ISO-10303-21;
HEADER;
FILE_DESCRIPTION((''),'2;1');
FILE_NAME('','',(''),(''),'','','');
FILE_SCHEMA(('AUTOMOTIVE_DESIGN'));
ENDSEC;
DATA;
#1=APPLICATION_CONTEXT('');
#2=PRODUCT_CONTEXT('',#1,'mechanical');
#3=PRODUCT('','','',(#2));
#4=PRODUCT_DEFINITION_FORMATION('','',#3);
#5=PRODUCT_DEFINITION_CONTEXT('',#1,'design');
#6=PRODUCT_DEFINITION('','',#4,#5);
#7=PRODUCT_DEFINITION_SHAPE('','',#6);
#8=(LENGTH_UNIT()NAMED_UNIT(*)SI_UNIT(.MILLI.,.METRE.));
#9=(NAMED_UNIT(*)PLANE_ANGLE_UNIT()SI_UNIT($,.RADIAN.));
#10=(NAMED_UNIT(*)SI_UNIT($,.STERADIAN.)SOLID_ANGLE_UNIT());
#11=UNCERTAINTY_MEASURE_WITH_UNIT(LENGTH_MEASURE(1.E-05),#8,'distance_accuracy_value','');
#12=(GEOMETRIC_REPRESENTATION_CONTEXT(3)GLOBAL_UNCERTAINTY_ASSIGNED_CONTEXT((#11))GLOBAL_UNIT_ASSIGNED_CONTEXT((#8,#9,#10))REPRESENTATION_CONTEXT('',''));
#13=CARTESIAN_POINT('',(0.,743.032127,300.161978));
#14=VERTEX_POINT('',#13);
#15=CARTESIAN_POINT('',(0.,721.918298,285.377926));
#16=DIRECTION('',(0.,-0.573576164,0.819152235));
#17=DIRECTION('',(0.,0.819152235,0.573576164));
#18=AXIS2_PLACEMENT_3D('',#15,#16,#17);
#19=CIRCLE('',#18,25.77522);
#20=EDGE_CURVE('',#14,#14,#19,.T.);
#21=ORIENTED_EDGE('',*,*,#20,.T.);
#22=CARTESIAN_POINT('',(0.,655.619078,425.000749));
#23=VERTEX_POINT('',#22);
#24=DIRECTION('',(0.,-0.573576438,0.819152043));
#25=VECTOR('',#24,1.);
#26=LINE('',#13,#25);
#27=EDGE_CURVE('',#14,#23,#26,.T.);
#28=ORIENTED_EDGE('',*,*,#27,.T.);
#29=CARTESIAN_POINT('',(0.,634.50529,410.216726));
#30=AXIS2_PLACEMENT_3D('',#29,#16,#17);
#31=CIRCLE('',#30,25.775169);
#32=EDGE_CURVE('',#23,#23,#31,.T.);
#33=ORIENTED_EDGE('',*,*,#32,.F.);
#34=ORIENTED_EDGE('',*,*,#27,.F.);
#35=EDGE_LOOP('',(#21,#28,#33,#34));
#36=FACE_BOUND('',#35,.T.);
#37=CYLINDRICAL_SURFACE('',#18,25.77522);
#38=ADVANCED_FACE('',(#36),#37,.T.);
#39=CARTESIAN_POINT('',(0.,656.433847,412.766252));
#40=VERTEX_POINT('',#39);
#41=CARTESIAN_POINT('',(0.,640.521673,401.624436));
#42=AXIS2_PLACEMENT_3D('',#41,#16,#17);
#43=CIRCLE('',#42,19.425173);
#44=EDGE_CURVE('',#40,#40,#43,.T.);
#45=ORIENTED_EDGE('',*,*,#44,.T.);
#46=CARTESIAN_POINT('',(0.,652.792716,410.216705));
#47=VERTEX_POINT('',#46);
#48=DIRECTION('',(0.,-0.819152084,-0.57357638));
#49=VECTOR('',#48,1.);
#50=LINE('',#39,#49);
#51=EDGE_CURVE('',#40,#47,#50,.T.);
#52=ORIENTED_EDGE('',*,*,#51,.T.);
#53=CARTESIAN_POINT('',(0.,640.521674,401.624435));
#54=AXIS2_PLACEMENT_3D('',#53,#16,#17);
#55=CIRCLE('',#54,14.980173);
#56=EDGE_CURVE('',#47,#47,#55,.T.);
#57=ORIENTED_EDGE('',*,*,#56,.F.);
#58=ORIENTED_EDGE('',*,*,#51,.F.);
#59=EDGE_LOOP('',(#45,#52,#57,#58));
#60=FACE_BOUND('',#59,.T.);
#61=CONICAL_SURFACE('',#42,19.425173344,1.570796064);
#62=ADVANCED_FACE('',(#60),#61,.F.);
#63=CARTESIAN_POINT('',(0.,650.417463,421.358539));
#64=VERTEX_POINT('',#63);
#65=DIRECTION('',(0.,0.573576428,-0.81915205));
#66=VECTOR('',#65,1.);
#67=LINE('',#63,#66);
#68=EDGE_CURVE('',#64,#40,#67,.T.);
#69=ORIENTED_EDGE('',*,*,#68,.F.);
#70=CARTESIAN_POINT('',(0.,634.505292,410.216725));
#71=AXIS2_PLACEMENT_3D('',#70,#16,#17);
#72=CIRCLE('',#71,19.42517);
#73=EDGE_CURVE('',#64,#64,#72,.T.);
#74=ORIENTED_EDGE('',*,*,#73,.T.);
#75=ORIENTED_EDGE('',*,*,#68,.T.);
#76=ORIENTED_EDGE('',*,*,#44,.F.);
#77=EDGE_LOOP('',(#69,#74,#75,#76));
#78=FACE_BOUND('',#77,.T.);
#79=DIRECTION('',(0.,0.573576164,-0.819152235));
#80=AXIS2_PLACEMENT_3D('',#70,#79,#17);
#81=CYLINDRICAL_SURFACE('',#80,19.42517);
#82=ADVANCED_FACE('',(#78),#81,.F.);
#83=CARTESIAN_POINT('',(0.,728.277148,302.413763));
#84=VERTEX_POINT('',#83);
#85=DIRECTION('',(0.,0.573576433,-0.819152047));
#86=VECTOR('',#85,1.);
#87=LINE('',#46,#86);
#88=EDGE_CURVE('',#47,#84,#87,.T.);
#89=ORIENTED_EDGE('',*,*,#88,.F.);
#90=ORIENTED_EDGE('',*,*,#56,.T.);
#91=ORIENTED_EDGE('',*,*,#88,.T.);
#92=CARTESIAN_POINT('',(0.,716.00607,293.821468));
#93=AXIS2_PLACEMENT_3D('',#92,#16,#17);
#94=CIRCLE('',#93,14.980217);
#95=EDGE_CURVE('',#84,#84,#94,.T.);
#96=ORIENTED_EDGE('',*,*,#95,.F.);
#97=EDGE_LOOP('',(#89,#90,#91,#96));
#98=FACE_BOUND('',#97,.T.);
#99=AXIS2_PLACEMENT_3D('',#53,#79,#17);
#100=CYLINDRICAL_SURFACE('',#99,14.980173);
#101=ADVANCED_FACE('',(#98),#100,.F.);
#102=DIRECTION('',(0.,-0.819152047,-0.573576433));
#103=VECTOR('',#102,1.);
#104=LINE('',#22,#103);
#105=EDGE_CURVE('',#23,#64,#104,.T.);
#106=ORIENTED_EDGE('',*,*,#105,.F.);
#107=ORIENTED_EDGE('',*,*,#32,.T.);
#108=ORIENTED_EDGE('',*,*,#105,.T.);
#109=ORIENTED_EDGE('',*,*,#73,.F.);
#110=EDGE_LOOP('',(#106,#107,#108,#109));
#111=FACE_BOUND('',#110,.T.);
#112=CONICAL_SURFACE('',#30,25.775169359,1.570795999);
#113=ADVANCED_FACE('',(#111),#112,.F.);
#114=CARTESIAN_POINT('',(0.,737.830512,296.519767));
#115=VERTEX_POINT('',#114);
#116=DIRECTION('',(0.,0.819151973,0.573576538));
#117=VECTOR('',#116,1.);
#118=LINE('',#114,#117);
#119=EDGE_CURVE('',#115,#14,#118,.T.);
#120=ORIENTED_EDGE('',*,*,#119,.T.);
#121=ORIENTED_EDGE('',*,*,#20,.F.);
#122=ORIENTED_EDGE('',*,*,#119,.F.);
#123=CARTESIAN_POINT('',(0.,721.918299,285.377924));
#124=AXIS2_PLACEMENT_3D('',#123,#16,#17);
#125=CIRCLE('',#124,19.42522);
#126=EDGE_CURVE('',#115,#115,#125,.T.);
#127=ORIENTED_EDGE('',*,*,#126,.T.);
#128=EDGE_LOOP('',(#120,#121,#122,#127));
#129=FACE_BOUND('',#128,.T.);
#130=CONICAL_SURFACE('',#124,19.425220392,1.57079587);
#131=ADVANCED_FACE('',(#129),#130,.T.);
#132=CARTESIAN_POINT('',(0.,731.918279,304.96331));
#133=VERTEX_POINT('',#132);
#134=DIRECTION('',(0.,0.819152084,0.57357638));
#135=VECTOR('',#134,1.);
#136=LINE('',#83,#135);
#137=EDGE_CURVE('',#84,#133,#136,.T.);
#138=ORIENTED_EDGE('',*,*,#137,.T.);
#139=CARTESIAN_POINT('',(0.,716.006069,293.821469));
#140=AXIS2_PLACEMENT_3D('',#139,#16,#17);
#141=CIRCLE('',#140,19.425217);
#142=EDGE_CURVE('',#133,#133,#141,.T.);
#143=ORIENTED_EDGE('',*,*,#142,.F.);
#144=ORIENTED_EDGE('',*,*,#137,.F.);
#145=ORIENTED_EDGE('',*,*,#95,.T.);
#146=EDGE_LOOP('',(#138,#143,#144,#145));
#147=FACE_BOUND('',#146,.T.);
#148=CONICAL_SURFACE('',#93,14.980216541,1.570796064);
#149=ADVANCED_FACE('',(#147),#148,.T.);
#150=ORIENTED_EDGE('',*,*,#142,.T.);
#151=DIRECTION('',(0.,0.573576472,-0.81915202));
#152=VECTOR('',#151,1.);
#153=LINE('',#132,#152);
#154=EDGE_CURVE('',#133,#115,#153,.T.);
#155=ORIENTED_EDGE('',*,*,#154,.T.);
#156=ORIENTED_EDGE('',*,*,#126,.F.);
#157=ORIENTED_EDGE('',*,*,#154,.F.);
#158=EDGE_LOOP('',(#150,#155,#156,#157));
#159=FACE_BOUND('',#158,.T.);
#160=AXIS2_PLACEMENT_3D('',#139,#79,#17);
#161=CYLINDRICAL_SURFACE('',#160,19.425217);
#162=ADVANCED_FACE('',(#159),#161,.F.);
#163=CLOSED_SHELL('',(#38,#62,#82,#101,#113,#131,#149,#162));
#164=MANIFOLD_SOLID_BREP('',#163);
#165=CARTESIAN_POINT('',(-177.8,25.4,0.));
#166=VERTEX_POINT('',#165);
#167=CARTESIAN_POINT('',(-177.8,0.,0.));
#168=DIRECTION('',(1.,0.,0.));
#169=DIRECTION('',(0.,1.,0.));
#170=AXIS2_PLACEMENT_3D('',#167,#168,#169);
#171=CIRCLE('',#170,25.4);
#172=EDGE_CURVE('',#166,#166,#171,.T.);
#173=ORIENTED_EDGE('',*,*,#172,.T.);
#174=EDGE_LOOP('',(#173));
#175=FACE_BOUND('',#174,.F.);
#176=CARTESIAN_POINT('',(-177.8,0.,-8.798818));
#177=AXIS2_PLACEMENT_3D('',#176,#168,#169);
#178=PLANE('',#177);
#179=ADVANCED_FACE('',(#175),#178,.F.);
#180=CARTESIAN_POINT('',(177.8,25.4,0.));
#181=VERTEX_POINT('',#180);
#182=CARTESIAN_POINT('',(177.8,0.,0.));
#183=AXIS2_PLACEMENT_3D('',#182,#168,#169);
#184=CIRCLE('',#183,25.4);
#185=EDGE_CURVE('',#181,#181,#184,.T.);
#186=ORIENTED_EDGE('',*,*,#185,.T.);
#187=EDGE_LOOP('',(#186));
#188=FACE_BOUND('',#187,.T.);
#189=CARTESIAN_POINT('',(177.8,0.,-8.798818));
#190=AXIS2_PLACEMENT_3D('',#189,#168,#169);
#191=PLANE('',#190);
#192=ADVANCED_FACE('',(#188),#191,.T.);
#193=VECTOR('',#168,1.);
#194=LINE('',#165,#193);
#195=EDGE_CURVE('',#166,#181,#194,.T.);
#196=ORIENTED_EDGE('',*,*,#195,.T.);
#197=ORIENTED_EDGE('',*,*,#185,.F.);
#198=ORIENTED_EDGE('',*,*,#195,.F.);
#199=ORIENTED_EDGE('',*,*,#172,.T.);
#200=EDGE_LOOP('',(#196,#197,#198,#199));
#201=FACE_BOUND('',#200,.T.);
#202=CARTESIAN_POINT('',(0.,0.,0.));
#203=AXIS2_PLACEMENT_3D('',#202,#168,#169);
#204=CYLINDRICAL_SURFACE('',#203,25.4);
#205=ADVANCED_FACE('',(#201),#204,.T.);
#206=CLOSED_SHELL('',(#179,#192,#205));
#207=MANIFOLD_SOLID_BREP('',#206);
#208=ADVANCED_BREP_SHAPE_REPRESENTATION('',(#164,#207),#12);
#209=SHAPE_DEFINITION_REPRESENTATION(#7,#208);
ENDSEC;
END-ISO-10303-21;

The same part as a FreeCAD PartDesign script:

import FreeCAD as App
import Part
import Sketcher
Q = App.Units.Quantity

doc = App.newDocument("Part")
params = doc.addObject("Spreadsheet::Sheet", "Params")
for row, (alias, value) in enumerate([
    ("sketch1_length", "6 in"),
    ("sketch1_length2", "6.0000001 in"),
    ("sketch1_length3", "0.25 in"),
    ("sketch1_length4", "0.175 in"),
    ("revolution_angle", "360 deg"),
    ("sketch2_diameter", "2 in"),
    ("pad1_length", "14 in"),
], start=1):
    params.set(f"A{row}", alias)
    params.set(f"B{row}", "=" + value)
    params.setAlias(f"B{row}", alias)

body = doc.addObject("PartDesign::Body", "Body")

# Sketch on YZ plane
sketch1 = doc.addObject("Sketcher::SketchObject", "Sketch")
body.addObject(sketch1)
sketch1.AttachmentSupport = (doc.YZ_Plane, [""])
sketch1.MapMode = "FlatFace"
sketch1.addGeometry([
    Part.LineSegment(App.Vector(743.032127, 300.161978, 0), App.Vector(655.619078, 425.000749, 0)),  # 0
    Part.LineSegment(App.Vector(655.619078, 425.000749, 0), App.Vector(650.417463, 421.358539, 0)),  # 1
    Part.LineSegment(App.Vector(650.417463, 421.358539, 0), App.Vector(656.433847, 412.766252, 0)),  # 2
    Part.LineSegment(App.Vector(656.433847, 412.766252, 0), App.Vector(652.792716, 410.216705, 0)),  # 3
    Part.LineSegment(App.Vector(652.792716, 410.216705, 0), App.Vector(728.277148, 302.413763, 0)),  # 4
    Part.LineSegment(App.Vector(728.277148, 302.413763, 0), App.Vector(731.918279, 304.96331, 0)),  # 5
    Part.LineSegment(App.Vector(731.918279, 304.96331, 0), App.Vector(737.830512, 296.519767, 0)),  # 6
    Part.LineSegment(App.Vector(737.830512, 296.519767, 0), App.Vector(743.032127, 300.161978, 0)),  # 7
], False)
sketch1.addGeometry(Part.LineSegment(App.Vector(721.918299, 285.377924, 0), App.Vector(634.50529, 410.216726, 0)), True)  # axis
sketch1.addConstraint([
    Sketcher.Constraint("Coincident", 0, 2, 1, 1),
    Sketcher.Constraint("Coincident", 1, 2, 2, 1),
    Sketcher.Constraint("Coincident", 2, 2, 3, 1),
    Sketcher.Constraint("Coincident", 3, 2, 4, 1),
    Sketcher.Constraint("Coincident", 4, 2, 5, 1),
    Sketcher.Constraint("Coincident", 5, 2, 6, 1),
    Sketcher.Constraint("Coincident", 6, 2, 7, 1),
    Sketcher.Constraint("Coincident", 7, 2, 0, 1),
    Sketcher.Constraint("Perpendicular", 0, 1),
    Sketcher.Constraint("Perpendicular", 1, 2),
    Sketcher.Constraint("Perpendicular", 2, 3),
    Sketcher.Constraint("Perpendicular", 3, 4),
    Sketcher.Constraint("Perpendicular", 4, 5),
    Sketcher.Constraint("Perpendicular", 5, 6),
    Sketcher.Constraint("Perpendicular", 6, 7),
    Sketcher.Constraint("Perpendicular", 7, 8),
    Sketcher.Constraint("Equal", 3, 5),
    Sketcher.Constraint("Distance", 0, Q("6 in")),
    Sketcher.Constraint("Distance", 8, Q("6.0000001 in")),
    Sketcher.Constraint("Angle", 0, Q("125 deg")),
    Sketcher.Constraint("Distance", 1, Q("0.25 in")),
    Sketcher.Constraint("Distance", 3, Q("0.175 in")),
    Sketcher.Constraint("DistanceX", 8, 1, 5, 2, Q("0.3937 in")),
    Sketcher.Constraint("DistanceX", -1, 1, 8, 1, 721.918299),
    Sketcher.Constraint("DistanceX", 2, 2, 4, 2, 71.843301),
    Sketcher.Constraint("DistanceX", 0, 2, 5, 2, 76.299201),
    Sketcher.Constraint("DistanceY", -1, 1, 0, 2, 425.000749),
    Sketcher.Constraint("DistanceY", 8, 1, 4, 2, 17.035839),
])
sketch1.setExpression("Constraints[17]", "Params.sketch1_length")
sketch1.setExpression("Constraints[18]", "Params.sketch1_length2")
sketch1.setExpression("Constraints[20]", "Params.sketch1_length3")
sketch1.setExpression("Constraints[21]", "Params.sketch1_length4")
revolution = doc.addObject("PartDesign::Revolution", "Revolution")
body.addObject(revolution)
revolution.Profile = sketch1
revolution.ReferenceAxis = (sketch1, ["Axis0"])
revolution.setExpression("Angle", "Params.revolution_angle")
body2 = doc.addObject("PartDesign::Body", "Body001")

# Sketch on YZ plane
sketch2 = doc.addObject("Sketcher::SketchObject", "Sketch001")
body2.addObject(sketch2)
sketch2.AttachmentSupport = (doc.getObject("YZ_Plane001"), [""])
sketch2.MapMode = "FlatFace"
sketch2.addGeometry(Part.Circle(App.Vector(0, 0, 0), App.Vector(0, 0, 1), 25.4), False)
sketch2.addConstraint([
    Sketcher.Constraint("Coincident", 0, 3, -1, 1),
    Sketcher.Constraint("Diameter", 0, Q("2 in")),
])
sketch2.setExpression("Constraints[1]", "Params.sketch2_diameter")
pad1 = doc.addObject("PartDesign::Pad", "Pad")
body2.addObject(pad1)
pad1.Profile = sketch2
pad1.setExpression("Length", "Params.pad1_length")
pad1.Midplane = True

doc.recompute()
